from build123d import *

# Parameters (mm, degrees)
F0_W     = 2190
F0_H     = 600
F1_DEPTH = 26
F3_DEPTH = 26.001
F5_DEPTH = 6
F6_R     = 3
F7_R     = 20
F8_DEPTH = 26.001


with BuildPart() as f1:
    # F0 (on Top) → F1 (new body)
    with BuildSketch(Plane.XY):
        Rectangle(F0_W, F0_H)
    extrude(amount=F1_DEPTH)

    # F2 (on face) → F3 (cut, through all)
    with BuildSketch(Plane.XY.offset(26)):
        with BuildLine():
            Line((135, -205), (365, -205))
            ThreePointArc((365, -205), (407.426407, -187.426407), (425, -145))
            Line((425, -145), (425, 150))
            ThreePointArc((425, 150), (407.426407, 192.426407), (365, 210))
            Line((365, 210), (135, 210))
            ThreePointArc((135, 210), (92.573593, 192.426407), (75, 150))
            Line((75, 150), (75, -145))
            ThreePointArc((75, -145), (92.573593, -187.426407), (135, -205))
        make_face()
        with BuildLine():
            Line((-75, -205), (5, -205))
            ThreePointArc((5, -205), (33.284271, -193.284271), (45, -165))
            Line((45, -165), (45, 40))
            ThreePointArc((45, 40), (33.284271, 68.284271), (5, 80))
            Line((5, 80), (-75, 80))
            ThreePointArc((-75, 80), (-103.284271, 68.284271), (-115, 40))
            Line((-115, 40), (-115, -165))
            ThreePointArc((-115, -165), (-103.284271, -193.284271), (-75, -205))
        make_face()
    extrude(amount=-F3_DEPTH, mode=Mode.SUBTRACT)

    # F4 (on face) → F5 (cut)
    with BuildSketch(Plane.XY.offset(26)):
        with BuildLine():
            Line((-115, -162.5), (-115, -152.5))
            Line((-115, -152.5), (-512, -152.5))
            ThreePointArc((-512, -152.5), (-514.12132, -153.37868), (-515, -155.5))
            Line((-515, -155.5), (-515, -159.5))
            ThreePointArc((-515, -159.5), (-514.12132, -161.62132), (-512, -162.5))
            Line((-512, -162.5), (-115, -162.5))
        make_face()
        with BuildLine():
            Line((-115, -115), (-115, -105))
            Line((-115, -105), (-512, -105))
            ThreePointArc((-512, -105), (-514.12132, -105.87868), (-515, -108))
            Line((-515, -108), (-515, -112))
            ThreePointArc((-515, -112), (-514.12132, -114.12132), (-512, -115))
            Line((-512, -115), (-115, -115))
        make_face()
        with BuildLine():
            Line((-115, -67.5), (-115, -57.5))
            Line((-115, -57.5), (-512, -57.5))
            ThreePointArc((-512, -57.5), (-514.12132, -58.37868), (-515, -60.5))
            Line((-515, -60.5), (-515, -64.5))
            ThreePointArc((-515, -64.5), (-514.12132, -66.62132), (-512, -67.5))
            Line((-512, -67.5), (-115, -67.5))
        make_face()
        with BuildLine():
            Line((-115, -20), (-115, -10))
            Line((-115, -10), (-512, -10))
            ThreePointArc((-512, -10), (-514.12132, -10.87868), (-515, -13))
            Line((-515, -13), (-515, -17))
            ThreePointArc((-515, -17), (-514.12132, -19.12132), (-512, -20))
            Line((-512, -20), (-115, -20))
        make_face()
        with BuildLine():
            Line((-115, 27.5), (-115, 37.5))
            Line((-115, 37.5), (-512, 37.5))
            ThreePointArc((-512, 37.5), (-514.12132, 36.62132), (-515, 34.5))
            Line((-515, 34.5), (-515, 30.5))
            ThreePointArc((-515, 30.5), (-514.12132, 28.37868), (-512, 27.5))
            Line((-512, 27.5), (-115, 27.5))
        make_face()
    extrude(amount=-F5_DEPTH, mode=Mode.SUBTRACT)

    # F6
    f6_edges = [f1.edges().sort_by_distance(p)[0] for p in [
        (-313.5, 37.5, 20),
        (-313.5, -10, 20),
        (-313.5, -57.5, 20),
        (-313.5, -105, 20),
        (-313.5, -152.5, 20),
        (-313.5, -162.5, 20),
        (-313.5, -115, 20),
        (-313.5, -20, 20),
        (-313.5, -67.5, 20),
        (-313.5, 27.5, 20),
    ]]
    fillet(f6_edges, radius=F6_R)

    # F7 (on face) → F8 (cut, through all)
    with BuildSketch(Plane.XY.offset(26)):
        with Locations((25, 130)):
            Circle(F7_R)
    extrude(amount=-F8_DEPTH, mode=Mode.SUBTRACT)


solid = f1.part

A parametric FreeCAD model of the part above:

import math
import FreeCAD as App
import Part
import Sketcher

V = App.Vector


def edges_at(feature, points):
    """Names of the edges that pass closest to the given points."""
    edges = feature.Shape.Edges
    near = lambda p: min(range(len(edges)), key=lambda i: edges[i].distToShape(Part.Vertex(*p))[0])
    return sorted({f"Edge{near(p) + 1}" for p in points})

doc = App.newDocument("Part")
body = doc.addObject("PartDesign::Body", "Body")

# Sketch on XY plane
sketch1 = body.newObject("Sketcher::SketchObject", "Sketch")
sketch1.AttachmentSupport = (doc.getObject("XY_Plane"), [""])
sketch1.MapMode = "FlatFace"
sketch1.addGeometry([
    Part.LineSegment(V(-1095, 300, 0), V(-1095, -300, 0)),
    Part.LineSegment(V(-1095, -300, 0), V(1095, -300, 0)),
    Part.LineSegment(V(1095, -300, 0), V(1095, 300, 0)),
    Part.LineSegment(V(1095, 300, 0), V(-1095, 300, 0)),
], False)
sketch1.addConstraint([
    Sketcher.Constraint("Coincident", 0, 2, 1, 1),
    Sketcher.Constraint("Coincident", 1, 2, 2, 1),
    Sketcher.Constraint("Coincident", 2, 2, 3, 1),
    Sketcher.Constraint("Coincident", 3, 2, 0, 1),
    Sketcher.Constraint("Vertical", 0),
    Sketcher.Constraint("Horizontal", 1),
    Sketcher.Constraint("Vertical", 2),
    Sketcher.Constraint("Horizontal", 3),
    Sketcher.Constraint("Symmetric", 0, 2, 2, 2, -1, 1),
    Sketcher.Constraint("DistanceX", 1, 1, 1, 2, 2190.0),
    Sketcher.Constraint("DistanceY", 0, 2, 0, 1, 600.0),
])
pad1 = body.newObject("PartDesign::Pad", "Pad")
pad1.Profile = sketch1
pad1.Length = 26

# Sketch on XY plane
sketch2 = body.newObject("Sketcher::SketchObject", "Sketch001")
sketch2.AttachmentSupport = (doc.getObject("XY_Plane"), [""])
sketch2.MapMode = "FlatFace"
sketch2.AttachmentOffset = App.Placement(V(0, 0, 26), App.Rotation())
sketch2.addGeometry([
    Part.LineSegment(V(135, -205, 0), V(365, -205, 0)),  # 0
    Part.ArcOfCircle(Part.Circle(V(365, -145, 0), V(0, 0, 1), 60), math.radians(-90), math.radians(0)),  # 1
    Part.LineSegment(V(425, -145, 0), V(425, 150, 0)),  # 2
    Part.ArcOfCircle(Part.Circle(V(365, 150, 0), V(0, 0, 1), 60), math.radians(0), math.radians(90)),  # 3
    Part.LineSegment(V(365, 210, 0), V(135, 210, 0)),  # 4
    Part.ArcOfCircle(Part.Circle(V(135, 150, 0), V(0, 0, 1), 60), math.radians(90), math.radians(180)),  # 5
    Part.LineSegment(V(75, 150, 0), V(75, -145, 0)),  # 6
    Part.ArcOfCircle(Part.Circle(V(135, -145, 0), V(0, 0, 1), 60), math.radians(180), math.radians(270)),  # 7
    Part.LineSegment(V(-75, -205, 0), V(5, -205, 0)),  # 8
    Part.ArcOfCircle(Part.Circle(V(4.999999, -164.999999, 0), V(0, 0, 1), 40.000001), math.radians(-89.999999), math.radians(-0.000001)),  # 9
    Part.LineSegment(V(45, -165, 0), V(45, 40, 0)),  # 10
    Part.ArcOfCircle(Part.Circle(V(4.999999, 39.999999, 0), V(0, 0, 1), 40.000001), math.radians(0.000001), math.radians(89.999999)),  # 11
    Part.LineSegment(V(5, 80, 0), V(-75, 80, 0)),  # 12
    Part.ArcOfCircle(Part.Circle(V(-74.999999, 39.999999, 0), V(0, 0, 1), 40.000001), math.radians(90.000001), math.radians(179.999999)),  # 13
    Part.LineSegment(V(-115, 40, 0), V(-115, -165, 0)),  # 14
    Part.ArcOfCircle(Part.Circle(V(-74.999999, -164.999999, 0), V(0, 0, 1), 40.000001), math.radians(-179.999999), math.radians(-90.000001)),  # 15
], False)
sketch2.addConstraint([
    Sketcher.Constraint("Tangent", 0, 2, 1, 1),
    Sketcher.Constraint("Tangent", 1, 2, 2, 1),
    Sketcher.Constraint("Tangent", 2, 2, 3, 1),
    Sketcher.Constraint("Tangent", 3, 2, 4, 1),
    Sketcher.Constraint("Tangent", 4, 2, 5, 1),
    Sketcher.Constraint("Tangent", 5, 2, 6, 1),
    Sketcher.Constraint("Tangent", 6, 2, 7, 1),
    Sketcher.Constraint("Tangent", 7, 2, 0, 1),
    Sketcher.Constraint("Tangent", 8, 2, 9, 1),
    Sketcher.Constraint("Tangent", 9, 2, 10, 1),
    Sketcher.Constraint("Tangent", 10, 2, 11, 1),
    Sketcher.Constraint("Tangent", 11, 2, 12, 1),
    Sketcher.Constraint("Tangent", 12, 2, 13, 1),
    Sketcher.Constraint("Tangent", 13, 2, 14, 1),
    Sketcher.Constraint("Tangent", 14, 2, 15, 1),
    Sketcher.Constraint("Tangent", 15, 2, 8, 1),
    Sketcher.Constraint("Horizontal", 0),
    Sketcher.Constraint("Vertical", 2),
    Sketcher.Constraint("Horizontal", 4),
    Sketcher.Constraint("Vertical", 6),
    Sketcher.Constraint("Horizontal", 8),
    Sketcher.Constraint("Vertical", 10),
    Sketcher.Constraint("Horizontal", 12),
    Sketcher.Constraint("Vertical", 14),
    Sketcher.Constraint("Equal", 1, 3),
    Sketcher.Constraint("Equal", 3, 5),
    Sketcher.Constraint("Equal", 5, 7),
    Sketcher.Constraint("Equal", 9, 11),
    Sketcher.Constraint("Equal", 11, 13),
    Sketcher.Constraint("Equal", 13, 15),
    Sketcher.Constraint("Horizontal", 7, 2, 8, 2),
    Sketcher.Constraint("Radius", 1, 60.0),
    Sketcher.Constraint("Radius", 9, 40.000001),
    Sketcher.Constraint("DistanceX", 0, 1, 0, 2, 230.0),
    Sketcher.Constraint("DistanceX", 8, 1, 8, 2, 80.0),
    Sketcher.Constraint("DistanceY", 2, 1, 2, 2, 295.0),
    Sketcher.Constraint("DistanceY", 10, 1, 10, 2, 205.0),
    Sketcher.Constraint("DistanceX", -1, 1, 1, 3, 365.0),
    Sketcher.Constraint("DistanceY", 1, 3, -1, 1, 145.0),
    Sketcher.Constraint("DistanceX", -1, 1, 9, 3, 4.999999),
])
pocket1 = body.newObject("PartDesign::Pocket", "Pocket")
pocket1.Profile = sketch2
pocket1.Type = "ThroughAll"

# Sketch on XY plane
sketch3 = body.newObject("Sketcher::SketchObject", "Sketch002")
sketch3.AttachmentSupport = (doc.getObject("XY_Plane"), [""])
sketch3.MapMode = "FlatFace"
sketch3.AttachmentOffset = App.Placement(V(0, 0, 26), App.Rotation())
sketch3.addGeometry([
    Part.LineSegment(V(-115, -162.5, 0), V(-115, -152.5, 0)),  # 0
    Part.LineSegment(V(-115, -152.5, 0), V(-512, -152.5, 0)),  # 1
    Part.ArcOfCircle(Part.Circle(V(-511.999999, -155.500001, 0), V(0, 0, 1), 3.000001), math.radians(90.000022), math.radians(179.999978)),  # 2
    Part.LineSegment(V(-515, -155.5, 0), V(-515, -159.5, 0)),  # 3
    Part.ArcOfCircle(Part.Circle(V(-511.999999, -159.499999, 0), V(0, 0, 1), 3.000001), math.radians(-179.999978), math.radians(-90.000022)),  # 4
    Part.LineSegment(V(-512, -162.5, 0), V(-115, -162.5, 0)),  # 5
    Part.LineSegment(V(-115, -115, 0), V(-115, -105, 0)),  # 6
    Part.LineSegment(V(-115, -105, 0), V(-512, -105, 0)),  # 7
    Part.ArcOfCircle(Part.Circle(V(-511.999999, -108.000001, 0), V(0, 0, 1), 3.000001), math.radians(90.000022), math.radians(179.999978)),  # 8
    Part.LineSegment(V(-515, -108, 0), V(-515, -112, 0)),  # 9
    Part.ArcOfCircle(Part.Circle(V(-511.999999, -111.999999, 0), V(0, 0, 1), 3.000001), math.radians(-179.999978), math.radians(-90.000022)),  # 10
    Part.LineSegment(V(-512, -115, 0), V(-115, -115, 0)),  # 11
    Part.LineSegment(V(-115, -67.5, 0), V(-115, -57.5, 0)),  # 12
    Part.LineSegment(V(-115, -57.5, 0), V(-512, -57.5, 0)),  # 13
    Part.ArcOfCircle(Part.Circle(V(-511.999999, -60.500001, 0), V(0, 0, 1), 3.000001), math.radians(90.000022), math.radians(179.999978)),  # 14
    Part.LineSegment(V(-515, -60.5, 0), V(-515, -64.5, 0)),  # 15
    Part.ArcOfCircle(Part.Circle(V(-511.999999, -64.499999, 0), V(0, 0, 1), 3.000001), math.radians(-179.999978), math.radians(-90.000022)),  # 16
    Part.LineSegment(V(-512, -67.5, 0), V(-115, -67.5, 0)),  # 17
    Part.LineSegment(V(-115, -20, 0), V(-115, -10, 0)),  # 18
    Part.LineSegment(V(-115, -10, 0), V(-512, -10, 0)),  # 19
    Part.ArcOfCircle(Part.Circle(V(-511.999999, -13.000001, 0), V(0, 0, 1), 3.000001), math.radians(90.000022), math.radians(179.999978)),  # 20
    Part.LineSegment(V(-515, -13, 0), V(-515, -17, 0)),  # 21
    Part.ArcOfCircle(Part.Circle(V(-511.999999, -16.999999, 0), V(0, 0, 1), 3.000001), math.radians(-179.999978), math.radians(-90.000022)),  # 22
    Part.LineSegment(V(-512, -20, 0), V(-115, -20, 0)),  # 23
    Part.LineSegment(V(-115, 27.5, 0), V(-115, 37.5, 0)),  # 24
    Part.LineSegment(V(-115, 37.5, 0), V(-512, 37.5, 0)),  # 25
    Part.ArcOfCircle(Part.Circle(V(-511.999999, 34.499999, 0), V(0, 0, 1), 3.000001), math.radians(90.000022), math.radians(179.999978)),  # 26
    Part.LineSegment(V(-515, 34.5, 0), V(-515, 30.5, 0)),  # 27
    Part.ArcOfCircle(Part.Circle(V(-511.999999, 30.500001, 0), V(0, 0, 1), 3.000001), math.radians(-179.999978), math.radians(-90.000022)),  # 28
    Part.LineSegment(V(-512, 27.5, 0), V(-115, 27.5, 0)),  # 29
], False)
sketch3.addConstraint([
    Sketcher.Constraint("Coincident", 0, 2, 1, 1),
    Sketcher.Constraint("Tangent", 1, 2, 2, 1),
    Sketcher.Constraint("Tangent", 2, 2, 3, 1),
    Sketcher.Constraint("Tangent", 3, 2, 4, 1),
    Sketcher.Constraint("Tangent", 4, 2, 5, 1),
    Sketcher.Constraint("Coincident", 5, 2, 0, 1),
    Sketcher.Constraint("Coincident", 6, 2, 7, 1),
    Sketcher.Constraint("Tangent", 7, 2, 8, 1),
    Sketcher.Constraint("Tangent", 8, 2, 9, 1),
    Sketcher.Constraint("Tangent", 9, 2, 10, 1),
    Sketcher.Constraint("Tangent", 10, 2, 11, 1),
    Sketcher.Constraint("Coincident", 11, 2, 6, 1),
    Sketcher.Constraint("Coincident", 12, 2, 13, 1),
    Sketcher.Constraint("Tangent", 13, 2, 14, 1),
    Sketcher.Constraint("Tangent", 14, 2, 15, 1),
    Sketcher.Constraint("Tangent", 15, 2, 16, 1),
    Sketcher.Constraint("Tangent", 16, 2, 17, 1),
    Sketcher.Constraint("Coincident", 17, 2, 12, 1),
    Sketcher.Constraint("Coincident", 18, 2, 19, 1),
    Sketcher.Constraint("Tangent", 19, 2, 20, 1),
    Sketcher.Constraint("Tangent", 20, 2, 21, 1),
    Sketcher.Constraint("Tangent", 21, 2, 22, 1),
    Sketcher.Constraint("Tangent", 22, 2, 23, 1),
    Sketcher.Constraint("Coincident", 23, 2, 18, 1),
    Sketcher.Constraint("Coincident", 24, 2, 25, 1),
    Sketcher.Constraint("Tangent", 25, 2, 26, 1),
    Sketcher.Constraint("Tangent", 26, 2, 27, 1),
    Sketcher.Constraint("Tangent", 27, 2, 28, 1),
    Sketcher.Constraint("Tangent", 28, 2, 29, 1),
    Sketcher.Constraint("Coincident", 29, 2, 24, 1),
    Sketcher.Constraint("Vertical", 0),
    Sketcher.Constraint("Horizontal", 1),
    Sketcher.Constraint("Vertical", 3),
    Sketcher.Constraint("Horizontal", 5),
    Sketcher.Constraint("Vertical", 6),
    Sketcher.Constraint("Horizontal", 7),
    Sketcher.Constraint("Vertical", 9),
    Sketcher.Constraint("Horizontal", 11),
    Sketcher.Constraint("Vertical", 12),
    Sketcher.Constraint("Horizontal", 13),
    Sketcher.Constraint("Vertical", 15),
    Sketcher.Constraint("Horizontal", 17),
    Sketcher.Constraint("Vertical", 18),
    Sketcher.Constraint("Horizontal", 19),
    Sketcher.Constraint("Vertical", 21),
    Sketcher.Constraint("Horizontal", 23),
    Sketcher.Constraint("Vertical", 24),
    Sketcher.Constraint("Horizontal", 25),
    Sketcher.Constraint("Vertical", 27),
    Sketcher.Constraint("Horizontal", 29),
    Sketcher.Constraint("Equal", 2, 4),
    Sketcher.Constraint("Equal", 4, 8),
    Sketcher.Constraint("Equal", 8, 10),
    Sketcher.Constraint("Equal", 10, 14),
    Sketcher.Constraint("Equal", 14, 16),
    Sketcher.Constraint("Equal", 16, 20),
    Sketcher.Constraint("Equal", 20, 22),
    Sketcher.Constraint("Equal", 22, 26),
    Sketcher.Constraint("Equal", 26, 28),
    Sketcher.Constraint("Vertical", 4, 3, 8, 3),
    Sketcher.Constraint("Vertical", 10, 3, 14, 3),
    Sketcher.Constraint("Vertical", 16, 3, 20, 3),
    Sketcher.Constraint("Vertical", 22, 3, 26, 3),
    Sketcher.Constraint("Vertical", 5, 2, 6, 2),
    Sketcher.Constraint("Vertical", 11, 2, 12, 2),
    Sketcher.Constraint("Vertical", 17, 2, 18, 2),
    Sketcher.Constraint("Vertical", 23, 2, 24, 2),
    Sketcher.Constraint("Equal", 0, 6),
    Sketcher.Constraint("Equal", 6, 12),
    Sketcher.Constraint("Equal", 12, 18),
    Sketcher.Constraint("Equal", 18, 24),
    Sketcher.Constraint("Radius", 2, 3.000001),
    Sketcher.Constraint("DistanceX", 1, 2, 1, 1, 397.0),
    Sketcher.Constraint("DistanceY", 0, 1, 0, 2, 10.0),
    Sketcher.Constraint("DistanceX", 2, 3, -1, 1, 511.999999),
    Sketcher.Constraint("DistanceY", 8, 3, -1, 1, 108.000001),
    Sketcher.Constraint("DistanceY", 20, 3, -1, 1, 13.000001),
    Sketcher.Constraint("DistanceY", 2, 3, 14, 3, 95.0),
    Sketcher.Constraint("DistanceY", 14, 3, 26, 3, 95.0),
    Sketcher.Constraint("DistanceY", 2, 3, -1, 1, 155.500001),
])
pocket2 = body.newObject("PartDesign::Pocket", "Pocket001")
pocket2.Profile = sketch3
pocket2.Length = 6
doc.recompute()

fillet = body.newObject("PartDesign::Fillet", "Fillet")
fillet.Base = (pocket2, edges_at(pocket2, [
    (-313.5, 37.5, 20),
    (-313.5, -10, 20),
    (-313.5, -57.5, 20),
    (-313.5, -105, 20),
    (-313.5, -152.5, 20),
    (-313.5, -162.5, 20),
    (-313.5, -115, 20),
    (-313.5, -20, 20),
    (-313.5, -67.5, 20),
    (-313.5, 27.5, 20),
]))
fillet.Radius = 3

# Sketch on XY plane
sketch4 = body.newObject("Sketcher::SketchObject", "Sketch003")
sketch4.AttachmentSupport = (doc.getObject("XY_Plane"), [""])
sketch4.MapMode = "FlatFace"
sketch4.AttachmentOffset = App.Placement(V(0, 0, 26), App.Rotation())
sketch4.addGeometry(Part.Circle(V(25, 130, 0), V(0, 0, 1), 20), False)
sketch4.addConstraint([
    Sketcher.Constraint("Diameter", 0, 40.0),
    Sketcher.Constraint("DistanceX", -1, 1, 0, 3, 25.0),
    Sketcher.Constraint("DistanceY", -1, 1, 0, 3, 130.0),
])
pocket3 = body.newObject("PartDesign::Pocket", "Pocket002")
pocket3.Profile = sketch4
pocket3.Type = "ThroughAll"

doc.recompute()
